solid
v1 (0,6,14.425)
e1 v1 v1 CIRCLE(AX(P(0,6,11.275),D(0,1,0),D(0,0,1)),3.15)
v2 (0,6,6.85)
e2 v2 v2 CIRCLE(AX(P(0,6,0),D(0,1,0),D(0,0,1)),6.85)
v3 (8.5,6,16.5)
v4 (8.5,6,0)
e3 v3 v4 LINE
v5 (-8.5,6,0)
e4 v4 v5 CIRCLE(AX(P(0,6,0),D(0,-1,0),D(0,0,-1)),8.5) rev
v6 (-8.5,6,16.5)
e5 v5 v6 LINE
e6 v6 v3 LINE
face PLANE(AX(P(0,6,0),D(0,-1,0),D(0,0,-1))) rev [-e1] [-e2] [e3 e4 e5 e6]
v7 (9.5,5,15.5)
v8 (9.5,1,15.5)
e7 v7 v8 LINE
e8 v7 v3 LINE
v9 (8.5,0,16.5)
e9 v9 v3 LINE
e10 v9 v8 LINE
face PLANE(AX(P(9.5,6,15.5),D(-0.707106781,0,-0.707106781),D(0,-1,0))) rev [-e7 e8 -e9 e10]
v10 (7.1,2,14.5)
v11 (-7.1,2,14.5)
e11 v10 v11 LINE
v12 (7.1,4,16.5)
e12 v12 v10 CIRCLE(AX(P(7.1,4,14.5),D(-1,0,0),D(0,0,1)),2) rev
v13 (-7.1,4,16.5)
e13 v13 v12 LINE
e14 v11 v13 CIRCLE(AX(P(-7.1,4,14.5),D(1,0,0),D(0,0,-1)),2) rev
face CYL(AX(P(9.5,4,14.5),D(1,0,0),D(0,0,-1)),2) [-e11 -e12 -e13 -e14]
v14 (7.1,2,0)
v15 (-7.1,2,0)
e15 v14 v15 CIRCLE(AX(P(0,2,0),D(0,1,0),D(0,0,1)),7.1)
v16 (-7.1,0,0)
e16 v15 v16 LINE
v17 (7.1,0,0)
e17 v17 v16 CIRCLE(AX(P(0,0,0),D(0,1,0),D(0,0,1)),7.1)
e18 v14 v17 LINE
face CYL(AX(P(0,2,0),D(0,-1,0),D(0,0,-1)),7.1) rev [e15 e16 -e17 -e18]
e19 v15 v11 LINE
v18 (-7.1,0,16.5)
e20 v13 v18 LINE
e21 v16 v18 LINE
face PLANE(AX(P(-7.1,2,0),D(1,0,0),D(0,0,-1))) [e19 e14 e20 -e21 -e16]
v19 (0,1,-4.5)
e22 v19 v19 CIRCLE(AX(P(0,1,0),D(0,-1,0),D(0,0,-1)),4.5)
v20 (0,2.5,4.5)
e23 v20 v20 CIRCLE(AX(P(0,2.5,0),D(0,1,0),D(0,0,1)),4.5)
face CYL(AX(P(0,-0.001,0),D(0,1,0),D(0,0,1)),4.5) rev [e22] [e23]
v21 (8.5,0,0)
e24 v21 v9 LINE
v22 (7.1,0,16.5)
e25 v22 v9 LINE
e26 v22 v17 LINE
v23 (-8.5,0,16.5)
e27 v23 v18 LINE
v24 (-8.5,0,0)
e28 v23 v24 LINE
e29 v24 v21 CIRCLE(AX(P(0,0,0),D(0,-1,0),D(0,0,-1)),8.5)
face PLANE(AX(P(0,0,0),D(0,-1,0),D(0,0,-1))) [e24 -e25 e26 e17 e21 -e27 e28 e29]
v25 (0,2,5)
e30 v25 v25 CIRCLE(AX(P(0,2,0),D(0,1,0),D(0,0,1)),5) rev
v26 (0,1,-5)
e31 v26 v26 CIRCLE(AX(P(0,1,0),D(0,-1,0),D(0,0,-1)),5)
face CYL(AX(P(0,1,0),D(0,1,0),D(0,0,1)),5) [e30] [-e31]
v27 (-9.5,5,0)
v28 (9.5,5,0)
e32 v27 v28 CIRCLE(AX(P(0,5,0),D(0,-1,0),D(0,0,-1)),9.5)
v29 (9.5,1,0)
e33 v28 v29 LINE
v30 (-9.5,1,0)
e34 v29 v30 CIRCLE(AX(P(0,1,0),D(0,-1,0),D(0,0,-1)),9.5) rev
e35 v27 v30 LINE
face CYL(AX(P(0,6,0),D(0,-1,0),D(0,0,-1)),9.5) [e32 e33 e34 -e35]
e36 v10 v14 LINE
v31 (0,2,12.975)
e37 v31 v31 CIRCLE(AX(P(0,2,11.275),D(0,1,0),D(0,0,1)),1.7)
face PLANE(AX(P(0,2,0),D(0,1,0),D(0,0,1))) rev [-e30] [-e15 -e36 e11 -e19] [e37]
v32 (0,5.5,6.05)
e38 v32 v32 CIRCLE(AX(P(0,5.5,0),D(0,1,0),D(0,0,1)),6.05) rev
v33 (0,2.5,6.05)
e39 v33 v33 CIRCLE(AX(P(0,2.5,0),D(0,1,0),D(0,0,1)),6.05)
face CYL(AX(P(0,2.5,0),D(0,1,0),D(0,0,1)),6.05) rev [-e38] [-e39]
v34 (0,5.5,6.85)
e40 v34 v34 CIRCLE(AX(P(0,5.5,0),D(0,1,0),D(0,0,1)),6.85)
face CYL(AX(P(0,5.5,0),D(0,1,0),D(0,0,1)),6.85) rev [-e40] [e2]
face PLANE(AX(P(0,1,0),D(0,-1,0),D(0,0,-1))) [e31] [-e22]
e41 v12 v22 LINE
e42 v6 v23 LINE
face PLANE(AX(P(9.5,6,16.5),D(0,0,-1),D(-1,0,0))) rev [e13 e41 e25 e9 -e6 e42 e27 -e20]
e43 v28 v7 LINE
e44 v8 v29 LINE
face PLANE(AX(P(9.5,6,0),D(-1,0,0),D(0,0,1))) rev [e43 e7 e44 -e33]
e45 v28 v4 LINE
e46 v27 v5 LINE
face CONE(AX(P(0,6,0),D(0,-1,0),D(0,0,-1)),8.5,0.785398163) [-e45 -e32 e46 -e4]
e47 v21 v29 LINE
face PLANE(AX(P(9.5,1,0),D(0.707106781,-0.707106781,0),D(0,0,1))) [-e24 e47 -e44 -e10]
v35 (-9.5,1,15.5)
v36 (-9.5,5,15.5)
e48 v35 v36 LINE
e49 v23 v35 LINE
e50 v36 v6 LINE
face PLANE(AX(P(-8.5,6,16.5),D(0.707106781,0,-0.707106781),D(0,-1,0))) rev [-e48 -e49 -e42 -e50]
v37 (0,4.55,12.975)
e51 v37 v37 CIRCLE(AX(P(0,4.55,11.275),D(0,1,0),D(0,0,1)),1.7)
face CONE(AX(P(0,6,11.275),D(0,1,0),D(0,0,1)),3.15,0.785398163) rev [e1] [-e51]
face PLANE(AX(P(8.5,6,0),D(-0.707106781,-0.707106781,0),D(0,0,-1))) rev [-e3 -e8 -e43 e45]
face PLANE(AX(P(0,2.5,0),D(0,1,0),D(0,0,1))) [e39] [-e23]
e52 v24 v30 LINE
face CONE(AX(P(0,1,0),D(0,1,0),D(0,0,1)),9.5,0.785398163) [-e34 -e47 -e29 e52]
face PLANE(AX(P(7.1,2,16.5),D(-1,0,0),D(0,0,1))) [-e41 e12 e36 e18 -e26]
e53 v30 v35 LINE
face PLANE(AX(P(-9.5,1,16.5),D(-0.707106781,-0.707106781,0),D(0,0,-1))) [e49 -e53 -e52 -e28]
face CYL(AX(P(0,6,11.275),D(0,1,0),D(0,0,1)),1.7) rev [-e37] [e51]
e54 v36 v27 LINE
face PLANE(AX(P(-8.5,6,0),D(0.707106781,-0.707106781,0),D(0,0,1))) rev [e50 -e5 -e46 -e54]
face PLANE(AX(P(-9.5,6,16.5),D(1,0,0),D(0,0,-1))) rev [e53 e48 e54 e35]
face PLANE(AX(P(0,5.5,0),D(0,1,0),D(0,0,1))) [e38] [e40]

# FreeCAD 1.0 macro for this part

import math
import FreeCAD as App
import Part
import Sketcher

V = App.Vector


def edges_at(feature, points):
    """Names of the edges that pass closest to the given points."""
    edges = feature.Shape.Edges
    near = lambda p: min(range(len(edges)), key=lambda i: edges[i].distToShape(Part.Vertex(*p))[0])
    return sorted({f"Edge{near(p) + 1}" for p in points})

doc = App.newDocument("Part")
body = doc.addObject("PartDesign::Body", "Body")

sketch1 = body.newObject("Sketcher::SketchObject", "Sketch")
sketch1.AttachmentSupport = (doc.getObject("XZ_Plane"), [""])
sketch1.MapMode = "FlatFace"
sketch1.addGeometry([
    Part.LineSegment(V(-10, 0, 0), V(-10, 16, 0)),
    Part.LineSegment(V(-10, 16, 0), V(10, 16, 0)),
    Part.LineSegment(V(10, 16, 0), V(10, 0, 0)),
    Part.ArcOfCircle(Part.Circle(V(0, 0, 0), V(0, 0, 1), 10), math.radians(180), math.radians(360)),
], False)
sketch1.addConstraint([
    Sketcher.Constraint("Coincident", 0, 2, 1, 1),
    Sketcher.Constraint("Coincident", 1, 2, 2, 1),
    Sketcher.Constraint("Tangent", 2, 2, 3, 2),
    Sketcher.Constraint("Tangent", 3, 1, 0, 1),
    Sketcher.Constraint("Vertical", 0),
    Sketcher.Constraint("Horizontal", 1),
    Sketcher.Constraint("Vertical", 2),
    Sketcher.Constraint("Coincident", 3, 3, -1, 1),
    Sketcher.Constraint("Radius", 3, 9.5),
    Sketcher.Constraint("DistanceY", 0, 1, 0, 2, 16.5),
])
pad1 = body.newObject("PartDesign::Pad", "Pad")
pad1.Profile = sketch1
pad1.Length = 6
pad1.Reversed = True

sketch2 = body.newObject("Sketcher::SketchObject", "Sketch001")
sketch2.AttachmentSupport = (doc.getObject("XZ_Plane"), [""])
sketch2.MapMode = "FlatFace"
sketch2.addGeometry([
    Part.LineSegment(V(-7, 0, 0), V(-7, 16, 0)),
    Part.LineSegment(V(-7, 16, 0), V(7, 16, 0)),
    Part.LineSegment(V(7, 16, 0), V(7, 0, 0)),
    Part.ArcOfCircle(Part.Circle(V(0, 0, 0), V(0, 0, 1), 7), math.radians(180), math.radians(360)),
], False)
sketch2.addConstraint([
    Sketcher.Constraint("Coincident", 0, 2, 1, 1),
    Sketcher.Constraint("Coincident", 1, 2, 2, 1),
    Sketcher.Constraint("Tangent", 2, 2, 3, 2),
    Sketcher.Constraint("Tangent", 3, 1, 0, 1),
    Sketcher.Constraint("Vertical", 0),
    Sketcher.Constraint("Horizontal", 1),
    Sketcher.Constraint("Vertical", 2),
    Sketcher.Constraint("Coincident", 3, 3, -1, 1),
    Sketcher.Constraint("Radius", 3, 7.1),
    Sketcher.Constraint("DistanceY", 0, 1, 0, 2, 16.5),
])
pocket1 = body.newObject("PartDesign::Pocket", "Pocket")
pocket1.Profile = sketch2
pocket1.Length = 2

sketch3 = body.newObject("Sketcher::SketchObject", "Sketch002")
sketch3.AttachmentSupport = (doc.getObject("XZ_Plane"), [""])
sketch3.MapMode = "FlatFace"
sketch3.AttachmentOffset = App.Placement(V(0, 0, -6), App.Rotation())
sketch3.addGeometry(Part.Circle(V(0, 0, 0), V(0, 0, 1), 6), False)
sketch3.addConstraint([
    Sketcher.Constraint("Coincident", 0, 3, -1, 1),
    Sketcher.Constraint("Diameter", 0, 12.1),
])
pocket2 = body.newObject("PartDesign::Pocket", "Pocket001")
pocket2.Profile = sketch3
pocket2.Length = 3.5
pocket2.Reversed = True

sketch4 = body.newObject("Sketcher::SketchObject", "Sketch003")
sketch4.AttachmentSupport = (doc.getObject("XZ_Plane"), [""])
sketch4.MapMode = "FlatFace"
sketch4.AttachmentOffset = App.Placement(V(0, 0, -6), App.Rotation())
sketch4.addGeometry(Part.Circle(V(0, 0, 0), V(0, 0, 1), 7), False)
sketch4.addConstraint([
    Sketcher.Constraint("Coincident", 0, 3, -1, 1),
    Sketcher.Constraint("Diameter", 0, 13.7),
])
pocket3 = body.newObject("PartDesign::Pocket", "Pocket002")
pocket3.Profile = sketch4
pocket3.Length = 0.5
pocket3.Reversed = True

sketch5 = body.newObject("Sketcher::SketchObject", "Sketch004")
sketch5.AttachmentSupport = (doc.getObject("XZ_Plane"), [""])
sketch5.MapMode = "FlatFace"
sketch5.AttachmentOffset = App.Placement(V(0, 0, -2.5), App.Rotation())
sketch5.addGeometry(Part.Circle(V(0, 0, 0), V(0, 0, 1), 4.5), False)
sketch5.addConstraint([
    Sketcher.Constraint("Coincident", 0, 3, -1, 1),
    Sketcher.Constraint("Diameter", 0, 9.0),
])
pocket4 = body.newObject("PartDesign::Pocket", "Pocket003")
pocket4.Profile = sketch5
pocket4.Type = "UpToFirst"
pocket4.Reversed = True
doc.recompute()

fillet = body.newObject("PartDesign::Fillet", "Fillet")
fillet.Base = (pocket4, edges_at(pocket4, [(0, 2, 16.5)]))
fillet.Radius = 2

sketch6 = body.newObject("Sketcher::SketchObject", "Sketch005")
sketch6.AttachmentSupport = (doc.getObject("XZ_Plane"), [""])
sketch6.MapMode = "FlatFace"
sketch6.AttachmentOffset = App.Placement(V(0, 0, -2), App.Rotation())
sketch6.addGeometry([
    Part.Circle(V(0, 0, 0), V(0, 0, 1), 5),
    Part.Circle(V(0, 0, 0), V(0, 0, 1), 4.5),
], False)
sketch6.addConstraint([
    Sketcher.Constraint("Coincident", 0, 3, -1, 1),
    Sketcher.Constraint("Coincident", 1, 3, -1, 1),
    Sketcher.Constraint("Diameter", 0, 10.0),
    Sketcher.Constraint("Diameter", 1, 9.0),
])
pad2 = body.newObject("PartDesign::Pad", "Pad001")
pad2.Profile = sketch6
pad2.Length = 1

sketch7 = body.newObject("Sketcher::SketchObject", "Sketch006")
sketch7.AttachmentSupport = (doc.getObject("XZ_Plane"), [""])
sketch7.MapMode = "FlatFace"
sketch7.AttachmentOffset = App.Placement(V(0, 0, -6), App.Rotation())
sketch7.addGeometry(Part.Circle(V(0, 11.3, 0), V(0, 0, 1), 1.7), False)
sketch7.addConstraint([
    Sketcher.Constraint("PointOnObject", 0, 3, -2),
    Sketcher.Constraint("Diameter", 0, 3.4),
    Sketcher.Constraint("DistanceY", -1, 1, 0, 3, 11.275),
])
doc.recompute()
hole = body.newObject("PartDesign::Hole", "Hole")
hole.Profile = sketch7
hole.ThreadType = "None"
hole.Diameter = 3.4
hole.DepthType = "ThroughAll"
hole.HoleCutType = "Countersink"
hole.HoleCutDiameter = 6.3
hole.HoleCutCountersinkAngle = 90
hole.Reversed = True
doc.recompute()

chamfer = body.newObject("PartDesign::Chamfer", "Chamfer")
chamfer.Base = (hole, edges_at(hole, [
    (9.5, 6, 8.25),
    (0, 6, -9.5),
    (9.5, 0, 8.25),
    (-9.5, 0, 8.25),
    (0, 0, -9.5),
    (-9.5, 6, 8.25),
    (9.5, 3, 16.5),
    (-9.5, 3, 16.5),
]))
chamfer.Size = 1

doc.recompute()
